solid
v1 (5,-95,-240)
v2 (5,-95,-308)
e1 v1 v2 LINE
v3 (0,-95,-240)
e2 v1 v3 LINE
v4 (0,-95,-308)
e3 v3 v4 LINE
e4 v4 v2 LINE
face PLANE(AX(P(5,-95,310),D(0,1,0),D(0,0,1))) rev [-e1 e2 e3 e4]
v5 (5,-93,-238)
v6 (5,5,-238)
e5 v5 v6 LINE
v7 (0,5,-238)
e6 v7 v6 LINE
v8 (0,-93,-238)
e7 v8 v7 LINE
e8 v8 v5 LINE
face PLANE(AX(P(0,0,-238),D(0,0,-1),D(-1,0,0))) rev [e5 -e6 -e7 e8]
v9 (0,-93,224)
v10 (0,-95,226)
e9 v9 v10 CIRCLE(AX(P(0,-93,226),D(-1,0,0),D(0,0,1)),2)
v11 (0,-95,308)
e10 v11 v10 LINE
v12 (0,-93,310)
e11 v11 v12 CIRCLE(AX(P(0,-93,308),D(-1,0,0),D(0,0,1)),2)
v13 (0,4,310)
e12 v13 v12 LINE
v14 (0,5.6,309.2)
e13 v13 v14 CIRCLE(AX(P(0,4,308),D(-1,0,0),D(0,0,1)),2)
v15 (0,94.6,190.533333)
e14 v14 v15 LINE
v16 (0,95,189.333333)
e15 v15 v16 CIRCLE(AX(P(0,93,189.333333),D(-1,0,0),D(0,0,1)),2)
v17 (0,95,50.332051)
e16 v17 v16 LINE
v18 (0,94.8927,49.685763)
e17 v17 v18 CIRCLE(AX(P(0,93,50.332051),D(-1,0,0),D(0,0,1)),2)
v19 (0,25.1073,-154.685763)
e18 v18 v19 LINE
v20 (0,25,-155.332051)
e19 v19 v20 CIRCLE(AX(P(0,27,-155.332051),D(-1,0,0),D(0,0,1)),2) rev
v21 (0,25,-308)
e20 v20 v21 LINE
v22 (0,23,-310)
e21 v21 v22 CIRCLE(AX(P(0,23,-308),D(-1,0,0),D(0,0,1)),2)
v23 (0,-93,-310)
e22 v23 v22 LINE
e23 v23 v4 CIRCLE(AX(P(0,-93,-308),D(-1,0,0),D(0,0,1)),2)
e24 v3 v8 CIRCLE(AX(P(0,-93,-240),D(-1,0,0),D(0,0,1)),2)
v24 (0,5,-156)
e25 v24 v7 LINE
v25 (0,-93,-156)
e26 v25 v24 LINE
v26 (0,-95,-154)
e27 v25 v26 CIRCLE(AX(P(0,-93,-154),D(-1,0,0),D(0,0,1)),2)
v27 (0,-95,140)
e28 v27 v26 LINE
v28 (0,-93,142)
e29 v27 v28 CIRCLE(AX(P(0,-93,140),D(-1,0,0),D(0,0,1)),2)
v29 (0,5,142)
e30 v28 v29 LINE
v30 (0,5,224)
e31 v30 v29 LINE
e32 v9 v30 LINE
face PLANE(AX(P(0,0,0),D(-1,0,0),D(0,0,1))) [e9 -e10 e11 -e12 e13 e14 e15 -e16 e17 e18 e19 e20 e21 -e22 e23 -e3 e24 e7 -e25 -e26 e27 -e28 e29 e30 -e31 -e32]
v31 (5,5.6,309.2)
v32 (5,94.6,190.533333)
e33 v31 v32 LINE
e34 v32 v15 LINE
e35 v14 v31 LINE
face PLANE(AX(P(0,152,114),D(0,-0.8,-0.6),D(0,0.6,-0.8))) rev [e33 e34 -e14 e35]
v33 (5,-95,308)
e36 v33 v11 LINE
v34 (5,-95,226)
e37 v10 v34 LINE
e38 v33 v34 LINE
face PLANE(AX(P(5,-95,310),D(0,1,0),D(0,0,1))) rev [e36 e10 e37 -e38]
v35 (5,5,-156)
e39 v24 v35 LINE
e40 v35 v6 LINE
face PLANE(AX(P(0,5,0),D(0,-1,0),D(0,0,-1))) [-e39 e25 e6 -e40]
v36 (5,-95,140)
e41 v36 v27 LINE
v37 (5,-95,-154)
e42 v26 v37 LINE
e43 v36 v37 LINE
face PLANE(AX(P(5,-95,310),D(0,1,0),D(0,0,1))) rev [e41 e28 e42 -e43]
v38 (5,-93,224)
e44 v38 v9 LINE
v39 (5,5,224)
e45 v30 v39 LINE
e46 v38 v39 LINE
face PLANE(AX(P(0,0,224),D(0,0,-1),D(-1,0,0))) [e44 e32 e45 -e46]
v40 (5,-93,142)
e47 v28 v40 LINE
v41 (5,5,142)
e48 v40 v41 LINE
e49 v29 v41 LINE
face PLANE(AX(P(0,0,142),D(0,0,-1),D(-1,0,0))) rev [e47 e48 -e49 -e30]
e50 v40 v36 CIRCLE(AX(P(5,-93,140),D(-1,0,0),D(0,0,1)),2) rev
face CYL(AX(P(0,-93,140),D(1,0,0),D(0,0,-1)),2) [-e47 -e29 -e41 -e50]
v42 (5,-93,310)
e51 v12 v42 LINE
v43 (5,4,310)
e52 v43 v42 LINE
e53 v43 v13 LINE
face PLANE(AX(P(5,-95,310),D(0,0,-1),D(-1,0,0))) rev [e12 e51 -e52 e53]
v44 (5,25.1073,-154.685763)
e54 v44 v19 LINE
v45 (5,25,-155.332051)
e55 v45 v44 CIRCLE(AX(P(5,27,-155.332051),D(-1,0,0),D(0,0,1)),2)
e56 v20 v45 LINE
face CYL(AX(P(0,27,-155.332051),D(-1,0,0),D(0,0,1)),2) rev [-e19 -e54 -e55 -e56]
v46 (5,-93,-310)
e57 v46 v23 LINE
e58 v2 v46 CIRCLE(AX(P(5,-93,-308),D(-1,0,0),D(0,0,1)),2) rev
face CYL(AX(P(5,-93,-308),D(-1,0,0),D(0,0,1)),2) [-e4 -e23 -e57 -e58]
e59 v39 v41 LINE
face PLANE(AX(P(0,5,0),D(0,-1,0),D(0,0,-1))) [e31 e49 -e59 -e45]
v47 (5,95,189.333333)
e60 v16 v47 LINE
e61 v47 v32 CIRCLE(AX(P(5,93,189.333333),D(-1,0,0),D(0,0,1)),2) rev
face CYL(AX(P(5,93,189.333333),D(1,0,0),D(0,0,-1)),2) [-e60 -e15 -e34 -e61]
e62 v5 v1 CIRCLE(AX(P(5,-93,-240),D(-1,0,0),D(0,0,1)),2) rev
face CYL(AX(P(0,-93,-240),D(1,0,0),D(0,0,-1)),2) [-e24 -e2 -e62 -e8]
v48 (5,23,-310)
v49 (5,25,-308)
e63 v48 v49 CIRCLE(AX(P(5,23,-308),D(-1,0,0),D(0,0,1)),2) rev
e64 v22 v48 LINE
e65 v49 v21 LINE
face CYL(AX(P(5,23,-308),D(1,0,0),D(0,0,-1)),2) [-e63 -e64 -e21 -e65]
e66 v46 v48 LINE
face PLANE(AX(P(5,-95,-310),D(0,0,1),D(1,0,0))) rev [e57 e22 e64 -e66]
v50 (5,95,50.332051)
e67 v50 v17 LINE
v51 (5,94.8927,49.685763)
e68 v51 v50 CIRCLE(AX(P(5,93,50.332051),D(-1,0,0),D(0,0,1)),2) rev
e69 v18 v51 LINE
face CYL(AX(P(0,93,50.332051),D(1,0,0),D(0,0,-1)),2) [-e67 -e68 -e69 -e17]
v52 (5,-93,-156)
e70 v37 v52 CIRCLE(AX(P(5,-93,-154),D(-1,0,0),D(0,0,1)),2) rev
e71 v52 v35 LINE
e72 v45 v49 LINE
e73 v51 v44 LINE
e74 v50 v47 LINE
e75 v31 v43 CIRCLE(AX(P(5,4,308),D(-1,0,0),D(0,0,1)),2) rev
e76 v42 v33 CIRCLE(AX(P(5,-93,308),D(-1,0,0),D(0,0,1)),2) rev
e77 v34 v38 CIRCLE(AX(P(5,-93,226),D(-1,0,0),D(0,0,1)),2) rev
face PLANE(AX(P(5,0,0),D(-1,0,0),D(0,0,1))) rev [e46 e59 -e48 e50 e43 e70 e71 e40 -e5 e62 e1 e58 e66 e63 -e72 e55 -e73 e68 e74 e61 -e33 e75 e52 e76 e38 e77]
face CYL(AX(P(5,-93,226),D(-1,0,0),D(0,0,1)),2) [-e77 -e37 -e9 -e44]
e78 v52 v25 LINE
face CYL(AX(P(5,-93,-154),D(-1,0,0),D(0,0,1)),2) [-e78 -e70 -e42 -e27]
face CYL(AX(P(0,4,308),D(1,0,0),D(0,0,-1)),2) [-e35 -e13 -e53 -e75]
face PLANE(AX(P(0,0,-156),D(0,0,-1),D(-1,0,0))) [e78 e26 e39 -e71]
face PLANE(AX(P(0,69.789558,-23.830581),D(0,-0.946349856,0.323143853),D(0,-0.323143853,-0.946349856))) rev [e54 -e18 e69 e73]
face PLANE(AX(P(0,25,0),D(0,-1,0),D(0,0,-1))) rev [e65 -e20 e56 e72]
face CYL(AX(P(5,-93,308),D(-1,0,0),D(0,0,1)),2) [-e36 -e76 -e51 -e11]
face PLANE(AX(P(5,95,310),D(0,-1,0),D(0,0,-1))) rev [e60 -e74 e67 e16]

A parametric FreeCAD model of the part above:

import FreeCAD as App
import Part
import Sketcher


def edges_at(feature, points):
    """Names of the edges that pass closest to the given points."""
    edges = feature.Shape.Edges
    near = lambda p: min(range(len(edges)), key=lambda i: edges[i].distToShape(Part.Vertex(*p))[0])
    return sorted({f"Edge{near(p) + 1}" for p in points})


def add_polygon(sketch, points):
    """Adds a closed chain of lines whose ends are joined by coincident constraints."""
    first, n = sketch.GeometryCount, len(points)
    for a, b in zip(points, points[1:] + points[:1]):
        sketch.addGeometry(Part.LineSegment(App.Vector(*a, 0), App.Vector(*b, 0)), False)
    for i in range(n):
        sketch.addConstraint(Sketcher.Constraint("Coincident", first + i, 2, first + (i + 1) % n, 1))

doc = App.newDocument("Part")
params = doc.addObject("Spreadsheet::Sheet", "Params")
for row, (alias, value) in enumerate([
    ("sketch1_width", "190 mm"),
    ("sketch1_height", "620 mm"),
    ("pad1_length", "5 mm"),
    ("sketch2_width", "90 mm"),
    ("sketch2_width2", "70 mm"),
    ("sketch2_width3", "100 mm"),
    ("sketch2_height", "120 mm"),
    ("sketch2_height2", "360 mm"),
    ("pocket1_length", "5 mm"),
    ("fillet_radius", "2 mm"),
], start=1):
    params.set(f"A{row}", alias)
    params.set(f"B{row}", "=" + value)
    params.setAlias(f"B{row}", alias)

body = doc.addObject("PartDesign::Body", "Body")

# Sketch on YZ plane
sketch1 = body.newObject("Sketcher::SketchObject", "Sketch")
sketch1.AttachmentSupport = (doc.getObject("YZ_Plane"), [""])
sketch1.MapMode = "FlatFace"
add_polygon(sketch1, [(95, 310), (-95, 310), (-95, -310), (95, -310)])  # lines 0-3
sketch1.addConstraint([
    Sketcher.Constraint("Horizontal", 0),
    Sketcher.Constraint("Vertical", 1),
    Sketcher.Constraint("Horizontal", 2),
    Sketcher.Constraint("Vertical", 3),
    Sketcher.Constraint("Symmetric", 0, 2, 2, 2, -1, 1),
    Sketcher.Constraint("DistanceX", 0, 2, 0, 1, 190.0),
    Sketcher.Constraint("DistanceY", 1, 2, 1, 1, 620.0),
])
sketch1.setExpression("Constraints[9]", "Params.sketch1_width")
sketch1.setExpression("Constraints[10]", "Params.sketch1_height")
pad1 = body.newObject("PartDesign::Pad", "Pad")
pad1.Profile = sketch1
pad1.setExpression("Length", "Params.pad1_length")

# Sketch on YZ plane
sketch2 = body.newObject("Sketcher::SketchObject", "Sketch001")
sketch2.AttachmentSupport = (doc.getObject("YZ_Plane"), [""])
sketch2.MapMode = "FlatFace"
sketch2.AttachmentOffset = App.Placement(App.Vector(0, 0, 5), App.Rotation())
add_polygon(sketch2, [(95, 310), (5, 310), (95, 190)])  # lines 0-2
add_polygon(sketch2, [(95, -310), (95, 50), (25, -155), (25, -310)])  # lines 3-6
add_polygon(sketch2, [(5, 224), (-95, 224), (-95, 142), (5, 142)])  # lines 7-10
add_polygon(sketch2, [(5, -156), (-95, -156), (-95, -238), (5, -238)])  # lines 11-14
sketch2.addConstraint([
    Sketcher.Constraint("Horizontal", 0),
    Sketcher.Constraint("Vertical", 2),
    Sketcher.Constraint("Vertical", 3),
    Sketcher.Constraint("Vertical", 5),
    Sketcher.Constraint("Horizontal", 6),
    Sketcher.Constraint("Horizontal", 7),
    Sketcher.Constraint("Vertical", 8),
    Sketcher.Constraint("Horizontal", 9),
    Sketcher.Constraint("Vertical", 10),
    Sketcher.Constraint("Horizontal", 11),
    Sketcher.Constraint("Vertical", 12),
    Sketcher.Constraint("Horizontal", 13),
    Sketcher.Constraint("Vertical", 14),
    Sketcher.Constraint("Symmetric", 2, 2, 6, 2, -1),
    Sketcher.Constraint("Vertical", 0, 2, 9, 2),
    Sketcher.Constraint("Vertical", 8, 2, 11, 2),
    Sketcher.Constraint("Vertical", 10, 2, 13, 2),
    Sketcher.Constraint("Equal", 10, 12),
    Sketcher.Constraint("DistanceX", 0, 2, 0, 1, 90.0),
    Sketcher.Constraint("DistanceX", 6, 1, 6, 2, 70.0),
    Sketcher.Constraint("DistanceX", 7, 2, 7, 1, 100.0),
    Sketcher.Constraint("DistanceY", 2, 1, 2, 2, 120.0),
    Sketcher.Constraint("DistanceY", 3, 1, 3, 2, 360.0),
    Sketcher.Constraint("DistanceY", 5, 2, 5, 1, 155.0),
    Sketcher.Constraint("DistanceY", 8, 2, 8, 1, 82.0),
    Sketcher.Constraint("DistanceX", -1, 1, 0, 2, 5.0),
    Sketcher.Constraint("DistanceY", -1, 1, 0, 2, 310.0),
    Sketcher.Constraint("DistanceY", -1, 1, 7, 2, 224.0),
    Sketcher.Constraint("DistanceY", 11, 2, -1, 1, 156.0),
])
sketch2.setExpression("Constraints[33]", "Params.sketch2_width")
sketch2.setExpression("Constraints[34]", "Params.sketch2_width2")
sketch2.setExpression("Constraints[35]", "Params.sketch2_width3")
sketch2.setExpression("Constraints[36]", "Params.sketch2_height")
sketch2.setExpression("Constraints[37]", "Params.sketch2_height2")
pocket1 = body.newObject("PartDesign::Pocket", "Pocket")
pocket1.Profile = sketch2
pocket1.setExpression("Length", "Params.pocket1_length")
doc.recompute()

fillet = body.newObject("PartDesign::Fillet", "Fillet")
fillet.Base = (pocket1, edges_at(pocket1, [
    (2.5, 25, -155),
    (2.5, 95, 50),
    (2.5, 25, -310),
    (2.5, -95, 142),
    (2.5, -95, 224),
    (2.5, -95, -238),
    (2.5, -95, -156),
    (2.5, 5, 310),
    (2.5, 95, 190),
    (2.5, -95, -310),
    (2.5, -95, 310),
]))
fillet.setExpression("Radius", "Params.fillet_radius")

doc.recompute()
